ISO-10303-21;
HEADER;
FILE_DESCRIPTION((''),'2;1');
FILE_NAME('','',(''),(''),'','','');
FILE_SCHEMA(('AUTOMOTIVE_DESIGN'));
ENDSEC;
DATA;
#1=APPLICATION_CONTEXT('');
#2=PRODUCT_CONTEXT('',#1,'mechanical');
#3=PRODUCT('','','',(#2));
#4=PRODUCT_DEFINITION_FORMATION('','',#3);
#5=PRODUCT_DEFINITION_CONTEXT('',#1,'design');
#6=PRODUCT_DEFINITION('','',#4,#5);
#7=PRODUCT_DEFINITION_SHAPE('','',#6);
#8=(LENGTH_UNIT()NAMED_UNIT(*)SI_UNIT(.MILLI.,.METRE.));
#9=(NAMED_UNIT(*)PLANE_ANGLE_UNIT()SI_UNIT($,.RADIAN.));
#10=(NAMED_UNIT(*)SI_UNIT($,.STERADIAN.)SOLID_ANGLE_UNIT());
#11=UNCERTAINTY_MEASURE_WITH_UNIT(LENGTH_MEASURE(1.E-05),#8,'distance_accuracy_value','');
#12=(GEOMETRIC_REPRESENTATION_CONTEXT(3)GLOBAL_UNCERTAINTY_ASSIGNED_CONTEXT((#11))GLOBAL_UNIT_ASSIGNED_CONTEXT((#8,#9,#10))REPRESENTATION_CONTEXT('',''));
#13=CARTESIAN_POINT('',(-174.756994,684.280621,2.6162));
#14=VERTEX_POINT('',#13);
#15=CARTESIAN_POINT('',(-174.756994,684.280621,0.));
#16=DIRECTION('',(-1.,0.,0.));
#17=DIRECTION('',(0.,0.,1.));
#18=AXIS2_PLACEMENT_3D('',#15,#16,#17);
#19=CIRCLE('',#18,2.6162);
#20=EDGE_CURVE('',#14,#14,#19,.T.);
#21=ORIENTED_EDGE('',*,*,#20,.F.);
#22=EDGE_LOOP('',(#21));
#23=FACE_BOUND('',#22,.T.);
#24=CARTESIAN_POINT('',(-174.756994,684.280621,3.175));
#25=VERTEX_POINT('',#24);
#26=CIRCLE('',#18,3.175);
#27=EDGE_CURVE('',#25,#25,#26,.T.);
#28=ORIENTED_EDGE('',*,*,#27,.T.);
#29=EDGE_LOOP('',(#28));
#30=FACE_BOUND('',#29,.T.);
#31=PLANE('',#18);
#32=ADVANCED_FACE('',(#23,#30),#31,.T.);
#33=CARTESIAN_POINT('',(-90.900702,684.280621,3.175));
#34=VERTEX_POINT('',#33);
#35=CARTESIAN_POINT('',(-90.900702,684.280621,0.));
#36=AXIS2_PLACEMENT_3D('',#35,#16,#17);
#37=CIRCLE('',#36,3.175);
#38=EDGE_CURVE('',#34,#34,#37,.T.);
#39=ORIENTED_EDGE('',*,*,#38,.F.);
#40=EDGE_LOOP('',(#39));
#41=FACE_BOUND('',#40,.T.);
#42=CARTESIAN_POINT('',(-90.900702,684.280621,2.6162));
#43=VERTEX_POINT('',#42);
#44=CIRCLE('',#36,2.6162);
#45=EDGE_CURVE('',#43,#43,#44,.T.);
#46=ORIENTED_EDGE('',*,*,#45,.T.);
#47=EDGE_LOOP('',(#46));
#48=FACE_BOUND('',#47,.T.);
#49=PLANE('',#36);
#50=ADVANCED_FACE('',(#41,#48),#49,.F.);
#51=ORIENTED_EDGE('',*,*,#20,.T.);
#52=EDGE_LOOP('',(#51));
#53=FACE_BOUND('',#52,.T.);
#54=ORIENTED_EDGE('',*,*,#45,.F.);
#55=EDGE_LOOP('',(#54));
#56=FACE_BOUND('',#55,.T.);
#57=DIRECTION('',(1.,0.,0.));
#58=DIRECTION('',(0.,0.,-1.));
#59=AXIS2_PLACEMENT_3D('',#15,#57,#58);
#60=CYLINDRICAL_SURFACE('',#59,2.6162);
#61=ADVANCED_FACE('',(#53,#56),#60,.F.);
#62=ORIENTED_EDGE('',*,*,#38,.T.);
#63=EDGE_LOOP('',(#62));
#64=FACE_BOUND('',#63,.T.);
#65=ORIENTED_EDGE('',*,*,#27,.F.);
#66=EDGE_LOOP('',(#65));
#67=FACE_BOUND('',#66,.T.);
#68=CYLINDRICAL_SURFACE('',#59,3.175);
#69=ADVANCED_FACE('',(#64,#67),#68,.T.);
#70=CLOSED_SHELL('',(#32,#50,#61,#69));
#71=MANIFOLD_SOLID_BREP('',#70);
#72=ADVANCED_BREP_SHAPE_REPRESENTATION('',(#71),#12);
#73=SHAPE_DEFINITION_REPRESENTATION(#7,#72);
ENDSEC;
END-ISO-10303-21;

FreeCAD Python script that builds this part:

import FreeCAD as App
import Part
import Sketcher

V = App.Vector
Q = App.Units.Quantity

doc = App.newDocument("Part")
body = doc.addObject("PartDesign::Body", "Body")

# Sketch on YZ plane
sketch1 = doc.addObject("Sketcher::SketchObject", "Sketch")
body.addObject(sketch1)
sketch1.AttachmentSupport = (doc.YZ_Plane, [""])
sketch1.MapMode = "FlatFace"
sketch1.AttachmentOffset = App.Placement(V(0, 0, -90.900702), App.Rotation())
sketch1.addGeometry([
    Part.Circle(V(684.3, 0, 0), V(0, 0, 1), 3.2),
    Part.Circle(V(684.3, 0, 0), V(0, 0, 1), 2.6),
], False)
sketch1.addConstraint([
    Sketcher.Constraint("Coincident", 1, 3, 0, 3),
    Sketcher.Constraint("PointOnObject", 0, 3, -1),
    Sketcher.Constraint("Diameter", 0, Q("0.25 in")),
    Sketcher.Constraint("Diameter", 1, Q("0.206 in")),
    Sketcher.Constraint("DistanceX", -1, 1, 0, 3, Q("684.280621 mm")),
])
pad1 = doc.addObject("PartDesign::Pad", "Pad")
body.addObject(pad1)
pad1.Profile = sketch1
pad1.Length = 83.856293
pad1.Reversed = True

doc.recompute()
